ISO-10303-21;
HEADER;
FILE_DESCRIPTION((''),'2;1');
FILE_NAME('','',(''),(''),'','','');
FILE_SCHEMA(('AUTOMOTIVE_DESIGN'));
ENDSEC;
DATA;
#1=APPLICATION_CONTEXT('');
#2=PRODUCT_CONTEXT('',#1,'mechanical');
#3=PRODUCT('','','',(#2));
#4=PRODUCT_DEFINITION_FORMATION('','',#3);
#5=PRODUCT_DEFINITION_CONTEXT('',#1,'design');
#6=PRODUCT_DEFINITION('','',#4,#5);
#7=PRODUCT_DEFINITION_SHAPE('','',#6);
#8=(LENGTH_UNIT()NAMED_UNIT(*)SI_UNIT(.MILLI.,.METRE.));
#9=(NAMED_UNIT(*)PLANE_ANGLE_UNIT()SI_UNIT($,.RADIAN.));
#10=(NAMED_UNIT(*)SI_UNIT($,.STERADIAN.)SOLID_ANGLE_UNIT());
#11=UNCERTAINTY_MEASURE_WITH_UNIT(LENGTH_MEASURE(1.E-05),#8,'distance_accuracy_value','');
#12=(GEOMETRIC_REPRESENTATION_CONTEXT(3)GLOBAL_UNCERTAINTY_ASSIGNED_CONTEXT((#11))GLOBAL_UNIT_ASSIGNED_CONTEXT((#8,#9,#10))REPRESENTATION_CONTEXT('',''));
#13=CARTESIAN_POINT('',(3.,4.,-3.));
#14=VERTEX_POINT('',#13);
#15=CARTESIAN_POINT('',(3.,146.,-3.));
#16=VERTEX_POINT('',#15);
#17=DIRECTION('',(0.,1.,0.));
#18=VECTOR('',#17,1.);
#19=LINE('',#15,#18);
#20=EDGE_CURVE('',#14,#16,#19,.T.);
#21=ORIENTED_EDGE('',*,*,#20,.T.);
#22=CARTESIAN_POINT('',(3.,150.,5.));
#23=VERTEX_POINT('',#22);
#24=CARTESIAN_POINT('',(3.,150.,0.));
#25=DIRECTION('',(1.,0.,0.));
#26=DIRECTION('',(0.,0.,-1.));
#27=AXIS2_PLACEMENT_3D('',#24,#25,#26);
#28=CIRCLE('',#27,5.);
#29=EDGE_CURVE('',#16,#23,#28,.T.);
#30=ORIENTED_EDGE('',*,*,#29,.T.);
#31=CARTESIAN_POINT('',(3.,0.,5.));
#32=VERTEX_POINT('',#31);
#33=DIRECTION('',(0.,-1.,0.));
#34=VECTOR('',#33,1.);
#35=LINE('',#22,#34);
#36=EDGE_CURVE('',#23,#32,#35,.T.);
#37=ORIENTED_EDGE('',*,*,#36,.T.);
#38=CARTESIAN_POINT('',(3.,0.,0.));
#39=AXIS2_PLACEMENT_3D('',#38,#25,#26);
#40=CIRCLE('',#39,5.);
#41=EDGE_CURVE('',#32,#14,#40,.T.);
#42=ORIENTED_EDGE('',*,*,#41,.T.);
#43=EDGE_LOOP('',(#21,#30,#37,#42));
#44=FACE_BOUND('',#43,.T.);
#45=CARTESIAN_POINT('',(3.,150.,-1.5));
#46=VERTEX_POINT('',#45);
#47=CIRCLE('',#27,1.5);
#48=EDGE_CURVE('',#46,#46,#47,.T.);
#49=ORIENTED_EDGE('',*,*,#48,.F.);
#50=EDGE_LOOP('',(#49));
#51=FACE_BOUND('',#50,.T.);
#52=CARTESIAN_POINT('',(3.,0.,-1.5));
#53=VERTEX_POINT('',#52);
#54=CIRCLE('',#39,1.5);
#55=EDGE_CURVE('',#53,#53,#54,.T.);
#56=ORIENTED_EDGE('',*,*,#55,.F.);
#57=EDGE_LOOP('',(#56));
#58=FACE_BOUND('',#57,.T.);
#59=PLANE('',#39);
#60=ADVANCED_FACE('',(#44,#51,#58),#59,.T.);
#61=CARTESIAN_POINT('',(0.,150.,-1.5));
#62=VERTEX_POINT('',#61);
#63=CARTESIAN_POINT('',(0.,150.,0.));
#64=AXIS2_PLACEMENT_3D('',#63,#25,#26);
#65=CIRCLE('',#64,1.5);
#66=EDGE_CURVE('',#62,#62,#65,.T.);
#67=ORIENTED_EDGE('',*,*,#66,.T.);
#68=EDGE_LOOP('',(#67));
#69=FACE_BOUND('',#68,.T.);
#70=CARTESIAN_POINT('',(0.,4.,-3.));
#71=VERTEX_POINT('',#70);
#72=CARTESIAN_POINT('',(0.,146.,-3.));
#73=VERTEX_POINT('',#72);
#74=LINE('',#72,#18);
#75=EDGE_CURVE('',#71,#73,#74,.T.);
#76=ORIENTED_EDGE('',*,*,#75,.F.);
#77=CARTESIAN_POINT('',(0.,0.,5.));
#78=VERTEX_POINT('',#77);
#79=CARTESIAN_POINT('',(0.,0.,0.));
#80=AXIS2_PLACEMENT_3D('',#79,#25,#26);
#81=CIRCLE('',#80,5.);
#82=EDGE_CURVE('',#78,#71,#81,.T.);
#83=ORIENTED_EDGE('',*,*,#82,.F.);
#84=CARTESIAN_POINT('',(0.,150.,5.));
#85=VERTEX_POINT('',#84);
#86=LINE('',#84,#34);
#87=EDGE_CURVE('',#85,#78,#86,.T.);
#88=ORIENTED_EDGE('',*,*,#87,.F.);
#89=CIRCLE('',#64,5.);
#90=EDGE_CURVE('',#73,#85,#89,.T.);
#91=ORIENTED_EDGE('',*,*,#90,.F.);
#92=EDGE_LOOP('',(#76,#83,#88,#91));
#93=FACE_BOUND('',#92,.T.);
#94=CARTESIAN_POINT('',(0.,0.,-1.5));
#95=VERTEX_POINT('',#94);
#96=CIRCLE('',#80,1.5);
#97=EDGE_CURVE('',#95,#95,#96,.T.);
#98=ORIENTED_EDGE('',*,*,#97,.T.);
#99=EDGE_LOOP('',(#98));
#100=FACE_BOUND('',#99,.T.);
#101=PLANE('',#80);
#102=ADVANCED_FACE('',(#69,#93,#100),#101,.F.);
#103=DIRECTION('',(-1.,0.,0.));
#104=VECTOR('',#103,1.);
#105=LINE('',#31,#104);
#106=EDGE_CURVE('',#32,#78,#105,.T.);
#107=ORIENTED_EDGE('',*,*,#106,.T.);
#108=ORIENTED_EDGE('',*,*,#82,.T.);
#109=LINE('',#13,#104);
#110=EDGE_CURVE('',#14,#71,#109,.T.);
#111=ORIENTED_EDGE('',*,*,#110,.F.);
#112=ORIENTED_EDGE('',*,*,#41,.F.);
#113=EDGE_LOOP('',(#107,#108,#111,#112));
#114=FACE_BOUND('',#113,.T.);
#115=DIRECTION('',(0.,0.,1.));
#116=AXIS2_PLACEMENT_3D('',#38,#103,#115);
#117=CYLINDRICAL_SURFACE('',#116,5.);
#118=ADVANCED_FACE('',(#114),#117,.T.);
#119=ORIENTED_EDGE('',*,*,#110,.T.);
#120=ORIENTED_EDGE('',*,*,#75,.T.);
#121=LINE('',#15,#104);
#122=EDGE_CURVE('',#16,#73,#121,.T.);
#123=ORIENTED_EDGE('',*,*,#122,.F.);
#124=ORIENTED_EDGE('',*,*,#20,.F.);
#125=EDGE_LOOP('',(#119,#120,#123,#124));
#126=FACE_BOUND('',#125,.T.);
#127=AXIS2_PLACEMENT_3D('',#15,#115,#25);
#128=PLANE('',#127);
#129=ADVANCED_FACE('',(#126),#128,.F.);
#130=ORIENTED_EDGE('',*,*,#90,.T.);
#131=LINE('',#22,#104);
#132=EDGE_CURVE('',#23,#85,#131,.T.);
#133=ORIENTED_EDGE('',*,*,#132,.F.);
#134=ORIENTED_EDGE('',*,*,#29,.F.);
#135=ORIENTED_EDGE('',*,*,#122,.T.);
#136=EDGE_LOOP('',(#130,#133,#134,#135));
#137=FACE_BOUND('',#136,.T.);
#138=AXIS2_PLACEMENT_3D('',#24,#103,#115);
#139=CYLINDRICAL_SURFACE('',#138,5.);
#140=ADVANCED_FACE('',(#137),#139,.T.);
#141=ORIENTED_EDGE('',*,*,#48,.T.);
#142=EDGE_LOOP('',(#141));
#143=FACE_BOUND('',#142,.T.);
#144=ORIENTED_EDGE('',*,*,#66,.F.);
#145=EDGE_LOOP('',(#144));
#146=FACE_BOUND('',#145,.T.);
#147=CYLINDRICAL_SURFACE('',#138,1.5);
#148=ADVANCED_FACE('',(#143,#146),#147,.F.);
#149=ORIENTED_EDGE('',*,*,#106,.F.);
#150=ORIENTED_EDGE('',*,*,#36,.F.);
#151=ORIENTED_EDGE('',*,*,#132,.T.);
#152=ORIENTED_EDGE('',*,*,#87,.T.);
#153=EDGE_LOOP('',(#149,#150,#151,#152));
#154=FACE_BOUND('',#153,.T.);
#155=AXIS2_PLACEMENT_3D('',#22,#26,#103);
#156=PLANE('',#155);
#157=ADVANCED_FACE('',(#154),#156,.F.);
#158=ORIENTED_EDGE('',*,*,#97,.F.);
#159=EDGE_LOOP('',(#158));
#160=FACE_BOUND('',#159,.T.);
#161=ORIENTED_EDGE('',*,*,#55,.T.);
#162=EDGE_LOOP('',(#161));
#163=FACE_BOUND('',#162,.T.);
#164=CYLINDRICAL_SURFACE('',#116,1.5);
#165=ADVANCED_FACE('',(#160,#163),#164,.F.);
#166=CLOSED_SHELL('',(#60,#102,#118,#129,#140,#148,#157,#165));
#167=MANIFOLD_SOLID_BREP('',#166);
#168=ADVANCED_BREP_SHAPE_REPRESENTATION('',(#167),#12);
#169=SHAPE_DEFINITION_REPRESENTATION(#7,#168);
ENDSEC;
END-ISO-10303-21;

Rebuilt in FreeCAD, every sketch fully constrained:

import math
import FreeCAD as App
import Part
import Sketcher

doc = App.newDocument("Part")
body = doc.addObject("PartDesign::Body", "Body")

# Sketch on YZ plane
sketch1 = body.newObject("Sketcher::SketchObject", "Sketch")
sketch1.AttachmentSupport = (doc.getObject("YZ_Plane"), [""])
sketch1.MapMode = "FlatFace"
sketch1.addGeometry(Part.LineSegment(App.Vector(150, 5, 0), App.Vector(0, 5, 0)), False)
sketch1.addGeometry(Part.ArcOfCircle(Part.Circle(App.Vector(0, 0, 0), App.Vector(0, 0, 1), 5), math.radians(90), math.radians(323.130102)), False)
sketch1.addGeometry(Part.LineSegment(App.Vector(4, -3, 0), App.Vector(146, -3, 0)), False)
sketch1.addGeometry(Part.ArcOfCircle(Part.Circle(App.Vector(150, 0, 0), App.Vector(0, 0, 1), 5), math.radians(-143.130102), math.radians(90)), False)
sketch1.addGeometry(Part.Circle(App.Vector(0, 0, 0), App.Vector(0, 0, 1), 1.5), False)
sketch1.addGeometry(Part.Circle(App.Vector(150, 0, 0), App.Vector(0, 0, 1), 1.5), False)
sketch1.addConstraint(Sketcher.Constraint("Tangent", 0, 2, 1, 1))
sketch1.addConstraint(Sketcher.Constraint("Coincident", 1, 2, 2, 1))
sketch1.addConstraint(Sketcher.Constraint("Coincident", 2, 2, 3, 1))
sketch1.addConstraint(Sketcher.Constraint("Tangent", 3, 2, 0, 1))
sketch1.addConstraint(Sketcher.Constraint("Horizontal", 0))
sketch1.addConstraint(Sketcher.Constraint("Horizontal", 2))
sketch1.addConstraint(Sketcher.Constraint("Coincident", 1, 3, -1, 1))
sketch1.addConstraint(Sketcher.Constraint("Coincident", 4, 3, -1, 1))
sketch1.addConstraint(Sketcher.Constraint("Coincident", 5, 3, 3, 3))
sketch1.addConstraint(Sketcher.Constraint("Equal", 1, 3))
sketch1.addConstraint(Sketcher.Constraint("Equal", 4, 5))
sketch1.addConstraint(Sketcher.Constraint("Diameter", 4, 3.0))
sketch1.addConstraint(Sketcher.Constraint("Radius", 1, 5.0))
sketch1.addConstraint(Sketcher.Constraint("DistanceX", 0, 2, 0, 1, 150.0))
sketch1.addConstraint(Sketcher.Constraint("DistanceX", 2, 1, 2, 2, 142.0))
pad1 = body.newObject("PartDesign::Pad", "Pad")
pad1.Profile = sketch1
pad1.Length = 3

doc.recompute()
